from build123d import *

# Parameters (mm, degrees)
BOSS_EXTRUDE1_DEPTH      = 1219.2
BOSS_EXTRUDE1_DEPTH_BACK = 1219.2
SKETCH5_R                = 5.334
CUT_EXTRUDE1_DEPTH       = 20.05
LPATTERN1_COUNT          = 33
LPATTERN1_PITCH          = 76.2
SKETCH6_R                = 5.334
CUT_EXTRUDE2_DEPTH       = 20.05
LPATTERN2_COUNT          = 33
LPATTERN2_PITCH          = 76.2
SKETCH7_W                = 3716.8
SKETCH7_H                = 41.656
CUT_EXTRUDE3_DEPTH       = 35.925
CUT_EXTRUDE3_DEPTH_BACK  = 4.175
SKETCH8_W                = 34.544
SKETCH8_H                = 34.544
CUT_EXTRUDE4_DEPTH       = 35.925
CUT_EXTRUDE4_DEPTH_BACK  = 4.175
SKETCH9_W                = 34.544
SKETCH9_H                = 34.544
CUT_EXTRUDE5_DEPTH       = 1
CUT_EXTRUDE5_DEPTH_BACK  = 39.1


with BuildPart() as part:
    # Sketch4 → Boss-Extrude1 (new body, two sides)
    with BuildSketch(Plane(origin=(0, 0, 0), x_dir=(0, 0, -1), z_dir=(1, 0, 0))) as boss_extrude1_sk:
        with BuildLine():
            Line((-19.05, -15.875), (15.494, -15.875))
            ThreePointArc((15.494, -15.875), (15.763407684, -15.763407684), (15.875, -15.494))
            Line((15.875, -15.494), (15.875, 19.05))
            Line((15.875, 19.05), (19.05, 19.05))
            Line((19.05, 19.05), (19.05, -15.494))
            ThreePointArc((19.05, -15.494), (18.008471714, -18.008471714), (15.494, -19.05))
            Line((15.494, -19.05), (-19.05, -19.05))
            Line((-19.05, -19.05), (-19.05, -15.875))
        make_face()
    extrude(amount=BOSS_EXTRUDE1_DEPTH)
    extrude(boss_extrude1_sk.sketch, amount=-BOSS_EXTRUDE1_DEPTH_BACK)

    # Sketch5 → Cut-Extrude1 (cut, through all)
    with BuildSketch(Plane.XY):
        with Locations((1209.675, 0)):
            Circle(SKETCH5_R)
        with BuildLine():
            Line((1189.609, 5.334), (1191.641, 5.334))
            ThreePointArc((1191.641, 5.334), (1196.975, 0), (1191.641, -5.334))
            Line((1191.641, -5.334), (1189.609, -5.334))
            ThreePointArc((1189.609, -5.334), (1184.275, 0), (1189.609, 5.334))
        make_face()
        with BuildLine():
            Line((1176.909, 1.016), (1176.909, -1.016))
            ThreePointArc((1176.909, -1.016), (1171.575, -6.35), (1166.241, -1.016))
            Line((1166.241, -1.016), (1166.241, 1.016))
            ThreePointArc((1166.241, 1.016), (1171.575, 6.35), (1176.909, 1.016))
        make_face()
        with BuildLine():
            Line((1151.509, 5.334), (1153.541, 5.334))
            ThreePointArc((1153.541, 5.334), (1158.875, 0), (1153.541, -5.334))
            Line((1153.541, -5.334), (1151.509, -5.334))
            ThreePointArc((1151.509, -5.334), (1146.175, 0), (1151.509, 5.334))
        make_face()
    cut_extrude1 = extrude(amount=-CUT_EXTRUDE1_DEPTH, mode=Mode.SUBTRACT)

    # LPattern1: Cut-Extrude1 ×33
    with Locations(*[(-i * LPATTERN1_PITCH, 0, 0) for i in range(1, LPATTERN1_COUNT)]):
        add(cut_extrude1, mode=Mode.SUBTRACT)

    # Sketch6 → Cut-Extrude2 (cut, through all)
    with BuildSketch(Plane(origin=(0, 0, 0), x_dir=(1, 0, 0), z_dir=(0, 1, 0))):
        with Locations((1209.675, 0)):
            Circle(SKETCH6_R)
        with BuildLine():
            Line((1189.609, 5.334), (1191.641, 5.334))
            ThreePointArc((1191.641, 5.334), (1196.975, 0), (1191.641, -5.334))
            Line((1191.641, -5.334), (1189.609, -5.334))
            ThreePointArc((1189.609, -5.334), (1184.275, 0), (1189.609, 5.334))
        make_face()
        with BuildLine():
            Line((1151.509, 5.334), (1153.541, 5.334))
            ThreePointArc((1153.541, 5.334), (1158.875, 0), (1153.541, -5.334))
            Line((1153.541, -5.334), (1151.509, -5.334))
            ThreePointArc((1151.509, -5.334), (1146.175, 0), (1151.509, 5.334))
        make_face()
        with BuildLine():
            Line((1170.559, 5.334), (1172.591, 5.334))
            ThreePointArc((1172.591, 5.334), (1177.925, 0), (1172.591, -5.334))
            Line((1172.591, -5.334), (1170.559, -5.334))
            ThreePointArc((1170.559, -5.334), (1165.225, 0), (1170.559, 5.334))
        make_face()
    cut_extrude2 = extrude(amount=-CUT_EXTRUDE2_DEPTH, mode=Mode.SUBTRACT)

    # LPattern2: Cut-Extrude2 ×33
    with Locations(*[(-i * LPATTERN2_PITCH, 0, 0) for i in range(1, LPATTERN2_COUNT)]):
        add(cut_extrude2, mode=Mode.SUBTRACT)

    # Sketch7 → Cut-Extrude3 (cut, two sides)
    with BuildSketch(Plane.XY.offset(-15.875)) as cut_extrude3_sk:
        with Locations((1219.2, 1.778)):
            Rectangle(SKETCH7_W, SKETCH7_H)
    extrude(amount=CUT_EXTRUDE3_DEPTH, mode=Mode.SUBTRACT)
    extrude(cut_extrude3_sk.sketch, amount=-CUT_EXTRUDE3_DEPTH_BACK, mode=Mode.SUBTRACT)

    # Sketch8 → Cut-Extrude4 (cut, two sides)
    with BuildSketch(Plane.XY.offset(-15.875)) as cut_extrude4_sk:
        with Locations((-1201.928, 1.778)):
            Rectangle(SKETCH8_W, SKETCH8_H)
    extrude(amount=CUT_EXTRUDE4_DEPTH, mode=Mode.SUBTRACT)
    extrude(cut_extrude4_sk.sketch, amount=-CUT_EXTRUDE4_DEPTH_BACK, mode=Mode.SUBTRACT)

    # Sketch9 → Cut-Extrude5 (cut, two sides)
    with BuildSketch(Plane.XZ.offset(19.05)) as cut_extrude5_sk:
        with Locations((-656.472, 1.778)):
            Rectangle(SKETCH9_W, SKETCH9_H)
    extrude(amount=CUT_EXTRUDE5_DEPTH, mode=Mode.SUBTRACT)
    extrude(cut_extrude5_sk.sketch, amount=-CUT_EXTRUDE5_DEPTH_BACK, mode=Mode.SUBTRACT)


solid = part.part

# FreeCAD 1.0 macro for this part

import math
import FreeCAD as App
import Part
import Sketcher
Q = App.Units.Quantity


def add_polygon(sketch, points):
    """Adds a closed chain of lines whose ends are joined by coincident constraints."""
    first, n = sketch.GeometryCount, len(points)
    for a, b in zip(points, points[1:] + points[:1]):
        sketch.addGeometry(Part.LineSegment(App.Vector(*a, 0), App.Vector(*b, 0)), False)
    for i in range(n):
        sketch.addConstraint(Sketcher.Constraint("Coincident", first + i, 2, first + (i + 1) % n, 1))

doc = App.newDocument("Part")
body = doc.addObject("PartDesign::Body", "Body")

# Sketch on YZ plane
sketch1 = body.newObject("Sketcher::SketchObject", "Sketch")
sketch1.AttachmentSupport = (doc.getObject("YZ_Plane"), [""])
sketch1.MapMode = "FlatFace"
sketch1.addGeometry(Part.LineSegment(App.Vector(-15.88, -15.49, 0), App.Vector(-15.88, 19.05, 0)), False)
sketch1.addGeometry(Part.LineSegment(App.Vector(-15.88, 19.05, 0), App.Vector(-19.05, 19.05, 0)), False)
sketch1.addGeometry(Part.LineSegment(App.Vector(-19.05, 19.05, 0), App.Vector(-19.05, -15.49, 0)), False)
sketch1.addGeometry(Part.ArcOfCircle(Part.Circle(App.Vector(-15.49, -15.49, 0), App.Vector(0, 0, 1), 3.56), math.radians(180), math.radians(270)), False)
sketch1.addGeometry(Part.LineSegment(App.Vector(-15.49, -19.05, 0), App.Vector(19.05, -19.05, 0)), False)
sketch1.addGeometry(Part.LineSegment(App.Vector(19.05, -19.05, 0), App.Vector(19.05, -15.88, 0)), False)
sketch1.addGeometry(Part.LineSegment(App.Vector(19.05, -15.88, 0), App.Vector(-15.49, -15.88, 0)), False)
sketch1.addGeometry(Part.ArcOfCircle(Part.Circle(App.Vector(-15.49, -15.49, 0), App.Vector(0, 0, 1), 0.38), math.radians(180), math.radians(270)), False)
sketch1.addConstraint(Sketcher.Constraint("Coincident", 0, 2, 1, 1))
sketch1.addConstraint(Sketcher.Constraint("Coincident", 1, 2, 2, 1))
sketch1.addConstraint(Sketcher.Constraint("Tangent", 2, 2, 3, 1))
sketch1.addConstraint(Sketcher.Constraint("Tangent", 3, 2, 4, 1))
sketch1.addConstraint(Sketcher.Constraint("Coincident", 4, 2, 5, 1))
sketch1.addConstraint(Sketcher.Constraint("Coincident", 5, 2, 6, 1))
sketch1.addConstraint(Sketcher.Constraint("Tangent", 6, 2, 7, 2))
sketch1.addConstraint(Sketcher.Constraint("Tangent", 7, 1, 0, 1))
sketch1.addConstraint(Sketcher.Constraint("Vertical", 0))
sketch1.addConstraint(Sketcher.Constraint("Horizontal", 1))
sketch1.addConstraint(Sketcher.Constraint("Vertical", 2))
sketch1.addConstraint(Sketcher.Constraint("Horizontal", 4))
sketch1.addConstraint(Sketcher.Constraint("Vertical", 5))
sketch1.addConstraint(Sketcher.Constraint("Horizontal", 6))
sketch1.addConstraint(Sketcher.Constraint("Coincident", 7, 3, 3, 3))
sketch1.addConstraint(Sketcher.Constraint("Symmetric", 1, 2, 4, 2, -1, 1))
sketch1.addConstraint(Sketcher.Constraint("Equal", 6, 0))
sketch1.addConstraint(Sketcher.Constraint("Radius", 3, Q("0.14 in")))
sketch1.addConstraint(Sketcher.Constraint("Radius", 7, Q("0.015 in")))
sketch1.addConstraint(Sketcher.Constraint("DistanceX", 4, 1, 4, 2, Q("1.36 in")))
pad1 = body.newObject("PartDesign::Pad", "Pad")
pad1.Profile = sketch1
pad1.Type = "TwoLengths"
pad1.Length = Q("48 in")
pad1.Length2 = Q("48 in")

# Sketch on XY plane
sketch2 = body.newObject("Sketcher::SketchObject", "Sketch001")
sketch2.AttachmentSupport = (doc.getObject("XY_Plane"), [""])
sketch2.MapMode = "FlatFace"
sketch2.addGeometry(Part.Circle(App.Vector(1209.7, 0, 0), App.Vector(0, 0, 1), 5.3), False)
sketch2.addGeometry(Part.LineSegment(App.Vector(1191.6, 5.3, 0), App.Vector(1189.6, 5.3, 0)), False)
sketch2.addGeometry(Part.ArcOfCircle(Part.Circle(App.Vector(1189.6, 0, 0), App.Vector(0, 0, 1), 5.3), math.radians(90), math.radians(270)), False)
sketch2.addGeometry(Part.LineSegment(App.Vector(1189.6, -5.3, 0), App.Vector(1191.6, -5.3, 0)), False)
sketch2.addGeometry(Part.ArcOfCircle(Part.Circle(App.Vector(1191.6, 0, 0), App.Vector(0, 0, 1), 5.3), math.radians(-90), math.radians(90)), False)
sketch2.addGeometry(Part.LineSegment(App.Vector(1176.9, -1, 0), App.Vector(1176.9, 1, 0)), False)
sketch2.addGeometry(Part.ArcOfCircle(Part.Circle(App.Vector(1171.6, 1, 0), App.Vector(0, 0, 1), 5.3), math.radians(0), math.radians(180)), False)
sketch2.addGeometry(Part.LineSegment(App.Vector(1166.2, 1, 0), App.Vector(1166.2, -1, 0)), False)
sketch2.addGeometry(Part.ArcOfCircle(Part.Circle(App.Vector(1171.6, -1, 0), App.Vector(0, 0, 1), 5.3), math.radians(180), math.radians(360)), False)
sketch2.addGeometry(Part.LineSegment(App.Vector(1153.5, 5.3, 0), App.Vector(1151.5, 5.3, 0)), False)
sketch2.addGeometry(Part.ArcOfCircle(Part.Circle(App.Vector(1151.5, 0, 0), App.Vector(0, 0, 1), 5.3), math.radians(90), math.radians(270)), False)
sketch2.addGeometry(Part.LineSegment(App.Vector(1151.5, -5.3, 0), App.Vector(1153.5, -5.3, 0)), False)
sketch2.addGeometry(Part.ArcOfCircle(Part.Circle(App.Vector(1153.5, 0, 0), App.Vector(0, 0, 1), 5.3), math.radians(-90), math.radians(90)), False)
sketch2.addConstraint(Sketcher.Constraint("Tangent", 1, 2, 2, 1))
sketch2.addConstraint(Sketcher.Constraint("Tangent", 2, 2, 3, 1))
sketch2.addConstraint(Sketcher.Constraint("Tangent", 3, 2, 4, 1))
sketch2.addConstraint(Sketcher.Constraint("Tangent", 4, 2, 1, 1))
sketch2.addConstraint(Sketcher.Constraint("Tangent", 5, 2, 6, 1))
sketch2.addConstraint(Sketcher.Constraint("Tangent", 6, 2, 7, 1))
sketch2.addConstraint(Sketcher.Constraint("Tangent", 7, 2, 8, 1))
sketch2.addConstraint(Sketcher.Constraint("Tangent", 8, 2, 5, 1))
sketch2.addConstraint(Sketcher.Constraint("Tangent", 9, 2, 10, 1))
sketch2.addConstraint(Sketcher.Constraint("Tangent", 10, 2, 11, 1))
sketch2.addConstraint(Sketcher.Constraint("Tangent", 11, 2, 12, 1))
sketch2.addConstraint(Sketcher.Constraint("Tangent", 12, 2, 9, 1))
sketch2.addConstraint(Sketcher.Constraint("Horizontal", 1))
sketch2.addConstraint(Sketcher.Constraint("Horizontal", 3))
sketch2.addConstraint(Sketcher.Constraint("Vertical", 5))
sketch2.addConstraint(Sketcher.Constraint("Vertical", 7))
sketch2.addConstraint(Sketcher.Constraint("Horizontal", 9))
sketch2.addConstraint(Sketcher.Constraint("Horizontal", 11))
sketch2.addConstraint(Sketcher.Constraint("Equal", 0, 2))
sketch2.addConstraint(Sketcher.Constraint("Equal", 4, 6))
sketch2.addConstraint(Sketcher.Constraint("Equal", 8, 10))
sketch2.addConstraint(Sketcher.Constraint("PointOnObject", 0, 3, -1))
sketch2.addConstraint(Sketcher.Constraint("PointOnObject", 2, 3, -1))
sketch2.addConstraint(Sketcher.Constraint("PointOnObject", 10, 3, -1))
sketch2.addConstraint(Sketcher.Constraint("Equal", 3, 9))
sketch2.addConstraint(Sketcher.Constraint("Equal", 11, 5))
sketch2.addConstraint(Sketcher.Constraint("Diameter", 0, Q("0.42 in")))
sketch2.addConstraint(Sketcher.Constraint("DistanceX", 1, 2, 1, 1, Q("0.08 in")))
sketch2.addConstraint(Sketcher.Constraint("DistanceX", 6, 3, 0, 3, Q("1.5 in")))
sketch2.addConstraint(Sketcher.Constraint("DistanceX", 10, 3, 2, 3, Q("1.5 in")))
sketch2.addConstraint(Sketcher.Constraint("DistanceX", 5, 2, 2, 3, Q("0.5 in")))
sketch2.addConstraint(Sketcher.Constraint("DistanceY", -1, 1, 6, 3, Q("0.04 in")))
sketch2.addConstraint(Sketcher.Constraint("DistanceX", -1, 1, 0, 3, Q("47.625 in")))
pocket1 = body.newObject("PartDesign::Pocket", "Pocket")
pocket1.Profile = sketch2
pocket1.Type = "ThroughAll"
doc.recompute()

linearpattern = body.newObject("PartDesign::LinearPattern", "LinearPattern")
linearpattern.Originals = [pocket1]
linearpattern.Direction = (doc.getObject("X_Axis"), [""])
linearpattern.Mode = "offset"
linearpattern.Offset = Q("3 in")
linearpattern.Occurrences = 33
linearpattern.Reversed = True
body.Tip = linearpattern

# Sketch on XZ plane
sketch3 = body.newObject("Sketcher::SketchObject", "Sketch002")
sketch3.AttachmentSupport = (doc.getObject("XZ_Plane"), [""])
sketch3.MapMode = "FlatFace"
sketch3.addGeometry(Part.Circle(App.Vector(1209.7, 0, 0), App.Vector(0, 0, 1), 5.3), False)
sketch3.addGeometry(Part.LineSegment(App.Vector(1191.6, -5.3, 0), App.Vector(1189.6, -5.3, 0)), False)
sketch3.addGeometry(Part.ArcOfCircle(Part.Circle(App.Vector(1189.6, 0, 0), App.Vector(0, 0, 1), 5.3), math.radians(90), math.radians(270)), False)
sketch3.addGeometry(Part.LineSegment(App.Vector(1189.6, 5.3, 0), App.Vector(1191.6, 5.3, 0)), False)
sketch3.addGeometry(Part.ArcOfCircle(Part.Circle(App.Vector(1191.6, 0, 0), App.Vector(0, 0, 1), 5.3), math.radians(-90), math.radians(90)), False)
sketch3.addGeometry(Part.LineSegment(App.Vector(1153.5, -5.3, 0), App.Vector(1151.5, -5.3, 0)), False)
sketch3.addGeometry(Part.ArcOfCircle(Part.Circle(App.Vector(1151.5, 0, 0), App.Vector(0, 0, 1), 5.3), math.radians(90), math.radians(270)), False)
sketch3.addGeometry(Part.LineSegment(App.Vector(1151.5, 5.3, 0), App.Vector(1153.5, 5.3, 0)), False)
sketch3.addGeometry(Part.ArcOfCircle(Part.Circle(App.Vector(1153.5, 0, 0), App.Vector(0, 0, 1), 5.3), math.radians(-90), math.radians(90)), False)
sketch3.addGeometry(Part.LineSegment(App.Vector(1172.6, -5.3, 0), App.Vector(1170.6, -5.3, 0)), False)
sketch3.addGeometry(Part.ArcOfCircle(Part.Circle(App.Vector(1170.6, 0, 0), App.Vector(0, 0, 1), 5.3), math.radians(90), math.radians(270)), False)
sketch3.addGeometry(Part.LineSegment(App.Vector(1170.6, 5.3, 0), App.Vector(1172.6, 5.3, 0)), False)
sketch3.addGeometry(Part.ArcOfCircle(Part.Circle(App.Vector(1172.6, 0, 0), App.Vector(0, 0, 1), 5.3), math.radians(-90), math.radians(90)), False)
sketch3.addConstraint(Sketcher.Constraint("Tangent", 1, 2, 2, 2))
sketch3.addConstraint(Sketcher.Constraint("Tangent", 2, 1, 3, 1))
sketch3.addConstraint(Sketcher.Constraint("Tangent", 3, 2, 4, 2))
sketch3.addConstraint(Sketcher.Constraint("Tangent", 4, 1, 1, 1))
sketch3.addConstraint(Sketcher.Constraint("Tangent", 5, 2, 6, 2))
sketch3.addConstraint(Sketcher.Constraint("Tangent", 6, 1, 7, 1))
sketch3.addConstraint(Sketcher.Constraint("Tangent", 7, 2, 8, 2))
sketch3.addConstraint(Sketcher.Constraint("Tangent", 8, 1, 5, 1))
sketch3.addConstraint(Sketcher.Constraint("Tangent", 9, 2, 10, 2))
sketch3.addConstraint(Sketcher.Constraint("Tangent", 10, 1, 11, 1))
sketch3.addConstraint(Sketcher.Constraint("Tangent", 11, 2, 12, 2))
sketch3.addConstraint(Sketcher.Constraint("Tangent", 12, 1, 9, 1))
sketch3.addConstraint(Sketcher.Constraint("Horizontal", 1))
sketch3.addConstraint(Sketcher.Constraint("Horizontal", 3))
sketch3.addConstraint(Sketcher.Constraint("Horizontal", 5))
sketch3.addConstraint(Sketcher.Constraint("Horizontal", 7))
sketch3.addConstraint(Sketcher.Constraint("Horizontal", 9))
sketch3.addConstraint(Sketcher.Constraint("Horizontal", 11))
sketch3.addConstraint(Sketcher.Constraint("Equal", 0, 2))
sketch3.addConstraint(Sketcher.Constraint("Equal", 4, 6))
sketch3.addConstraint(Sketcher.Constraint("Equal", 8, 10))
sketch3.addConstraint(Sketcher.Constraint("PointOnObject", 0, 3, -1))
sketch3.addConstraint(Sketcher.Constraint("PointOnObject", 2, 3, -1))
sketch3.addConstraint(Sketcher.Constraint("PointOnObject", 6, 3, -1))
sketch3.addConstraint(Sketcher.Constraint("PointOnObject", 10, 3, -1))
sketch3.addConstraint(Sketcher.Constraint("Equal", 3, 5))
sketch3.addConstraint(Sketcher.Constraint("Equal", 7, 9))
sketch3.addConstraint(Sketcher.Constraint("Diameter", 0, Q("0.42 in")))
sketch3.addConstraint(Sketcher.Constraint("DistanceX", 1, 2, 1, 1, Q("0.08 in")))
sketch3.addConstraint(Sketcher.Constraint("DistanceX", 6, 3, 2, 3, Q("1.5 in")))
sketch3.addConstraint(Sketcher.Constraint("DistanceX", 2, 3, 0, 3, Q("0.79 in")))
sketch3.addConstraint(Sketcher.Constraint("DistanceX", 8, 3, 10, 3, Q("0.67 in")))
sketch3.addConstraint(Sketcher.Constraint("DistanceX", -1, 1, 0, 3, Q("47.625 in")))
pocket2 = body.newObject("PartDesign::Pocket", "Pocket001")
pocket2.Profile = sketch3
pocket2.Type = "ThroughAll"
pocket2.Reversed = True
doc.recompute()

linearpattern2 = body.newObject("PartDesign::LinearPattern", "LinearPattern001")
linearpattern2.Originals = [pocket2]
linearpattern2.Direction = (doc.getObject("X_Axis"), [""])
linearpattern2.Mode = "offset"
linearpattern2.Offset = Q("3 in")
linearpattern2.Occurrences = 33
linearpattern2.Reversed = True
body.Tip = linearpattern2

# Sketch on XY plane
sketch4 = body.newObject("Sketcher::SketchObject", "Sketch003")
sketch4.AttachmentSupport = (doc.getObject("XY_Plane"), [""])
sketch4.MapMode = "FlatFace"
sketch4.AttachmentOffset = App.Placement(App.Vector(0, 0, -0.625 * 25.4), App.Rotation())
add_polygon(sketch4, [(-639, 23), (-639, -19), (3078, -19), (3078, 23)])  # lines 0-3
sketch4.addConstraint(Sketcher.Constraint("Vertical", 0))
sketch4.addConstraint(Sketcher.Constraint("Horizontal", 1))
sketch4.addConstraint(Sketcher.Constraint("Vertical", 2))
sketch4.addConstraint(Sketcher.Constraint("Horizontal", 3))
sketch4.addConstraint(Sketcher.Constraint("DistanceY", 0, 2, 0, 1, Q("1.64 in")))
sketch4.addConstraint(Sketcher.Constraint("DistanceY", 0, 2, -1, 1, Q("0.75 in")))
sketch4.addConstraint(Sketcher.Constraint("DistanceX", 1, 1, 1, 2, Q("3716.8 mm")))
sketch4.addConstraint(Sketcher.Constraint("DistanceX", 0, 2, -1, 1, Q("639.2 mm")))
pocket3 = body.newObject("PartDesign::Pocket", "Pocket002")
pocket3.Profile = sketch4
pocket3.Type = "ThroughAll"
pocket3.Midplane = True

# Sketch on XY plane
sketch5 = body.newObject("Sketcher::SketchObject", "Sketch004")
sketch5.AttachmentSupport = (doc.getObject("XY_Plane"), [""])
sketch5.MapMode = "FlatFace"
sketch5.AttachmentOffset = App.Placement(App.Vector(0, 0, -0.625 * 25.4), App.Rotation())
add_polygon(sketch5, [(-1219, 19), (-1219, -15), (-1185, -15), (-1185, 19)])  # lines 0-3
sketch5.addConstraint(Sketcher.Constraint("Vertical", 0))
sketch5.addConstraint(Sketcher.Constraint("Horizontal", 1))
sketch5.addConstraint(Sketcher.Constraint("Vertical", 2))
sketch5.addConstraint(Sketcher.Constraint("Horizontal", 3))
sketch5.addConstraint(Sketcher.Constraint("Equal", 3, 0))
sketch5.addConstraint(Sketcher.Constraint("DistanceX", 0, 2, -1, 1, Q("48 in")))
sketch5.addConstraint(Sketcher.Constraint("DistanceX", 1, 1, 1, 2, Q("1.36 in")))
sketch5.addConstraint(Sketcher.Constraint("DistanceY", 0, 2, -1, 1, Q("0.61 in")))
pocket4 = body.newObject("PartDesign::Pocket", "Pocket003")
pocket4.Profile = sketch5
pocket4.Type = "ThroughAll"
pocket4.Midplane = True

# Sketch on XZ plane
sketch6 = body.newObject("Sketcher::SketchObject", "Sketch005")
sketch6.AttachmentSupport = (doc.getObject("XZ_Plane"), [""])
sketch6.MapMode = "FlatFace"
sketch6.AttachmentOffset = App.Placement(App.Vector(0, 0, 0.75 * 25.4), App.Rotation())
add_polygon(sketch6, [(-674, 19), (-674, -15), (-639, -15), (-639, 19)])  # lines 0-3
sketch6.addConstraint(Sketcher.Constraint("Vertical", 0))
sketch6.addConstraint(Sketcher.Constraint("Horizontal", 1))
sketch6.addConstraint(Sketcher.Constraint("Vertical", 2))
sketch6.addConstraint(Sketcher.Constraint("Horizontal", 3))
sketch6.addConstraint(Sketcher.Constraint("Equal", 3, 0))
sketch6.addConstraint(Sketcher.Constraint("DistanceX", 1, 1, 1, 2, Q("1.36 in")))
sketch6.addConstraint(Sketcher.Constraint("DistanceY", 0, 2, -1, 1, Q("0.61 in")))
sketch6.addConstraint(Sketcher.Constraint("DistanceX", 0, 2, -1, 1, Q("673.744 mm")))
pocket5 = body.newObject("PartDesign::Pocket", "Pocket004")
pocket5.Profile = sketch6
pocket5.Type = "ThroughAll"
pocket5.Midplane = True

doc.recompute()
